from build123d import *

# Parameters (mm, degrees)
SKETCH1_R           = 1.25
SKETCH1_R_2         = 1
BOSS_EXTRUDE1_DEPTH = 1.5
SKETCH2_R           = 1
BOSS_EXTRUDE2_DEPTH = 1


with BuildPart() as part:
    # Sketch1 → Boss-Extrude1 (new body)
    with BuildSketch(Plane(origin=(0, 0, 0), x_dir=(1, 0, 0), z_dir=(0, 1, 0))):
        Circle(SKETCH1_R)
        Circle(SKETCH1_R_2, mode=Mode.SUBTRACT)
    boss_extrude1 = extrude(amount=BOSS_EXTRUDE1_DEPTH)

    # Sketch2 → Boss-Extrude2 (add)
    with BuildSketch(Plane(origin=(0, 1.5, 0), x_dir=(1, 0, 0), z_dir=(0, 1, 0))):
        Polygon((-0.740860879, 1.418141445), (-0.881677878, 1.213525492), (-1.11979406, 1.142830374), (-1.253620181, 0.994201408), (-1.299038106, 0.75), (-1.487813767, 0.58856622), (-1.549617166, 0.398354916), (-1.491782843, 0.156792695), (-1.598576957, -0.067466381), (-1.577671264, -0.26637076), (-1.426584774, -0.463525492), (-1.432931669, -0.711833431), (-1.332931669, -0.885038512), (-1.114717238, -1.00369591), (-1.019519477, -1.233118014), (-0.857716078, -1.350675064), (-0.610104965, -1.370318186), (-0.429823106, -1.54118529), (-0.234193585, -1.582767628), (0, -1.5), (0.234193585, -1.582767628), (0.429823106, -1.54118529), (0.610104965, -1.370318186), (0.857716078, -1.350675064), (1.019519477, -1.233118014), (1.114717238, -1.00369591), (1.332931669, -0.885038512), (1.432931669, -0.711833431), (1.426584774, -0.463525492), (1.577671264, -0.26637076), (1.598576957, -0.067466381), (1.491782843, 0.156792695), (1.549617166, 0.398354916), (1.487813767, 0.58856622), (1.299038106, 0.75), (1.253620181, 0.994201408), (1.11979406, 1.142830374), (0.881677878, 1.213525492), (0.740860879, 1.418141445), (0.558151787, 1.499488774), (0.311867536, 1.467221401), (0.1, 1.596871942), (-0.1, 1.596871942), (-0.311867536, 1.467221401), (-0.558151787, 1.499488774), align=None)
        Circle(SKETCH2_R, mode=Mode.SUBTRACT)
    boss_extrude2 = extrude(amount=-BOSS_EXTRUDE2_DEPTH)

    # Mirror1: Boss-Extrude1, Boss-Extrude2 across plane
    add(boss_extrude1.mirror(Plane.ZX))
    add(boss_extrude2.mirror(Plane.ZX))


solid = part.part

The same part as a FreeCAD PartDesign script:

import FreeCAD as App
import Part
import Sketcher

V = App.Vector
Q = App.Units.Quantity


def add_polygon(sketch, points):
    """Adds a closed chain of lines whose ends are joined by coincident constraints."""
    first, n = sketch.GeometryCount, len(points)
    for a, b in zip(points, points[1:] + points[:1]):
        sketch.addGeometry(Part.LineSegment(App.Vector(*a, 0), App.Vector(*b, 0)), False)
    for i in range(n):
        sketch.addConstraint(Sketcher.Constraint("Coincident", first + i, 2, first + (i + 1) % n, 1))

doc = App.newDocument("Part")
body = doc.addObject("PartDesign::Body", "Body")

# Sketch on XZ plane
sketch1 = body.newObject("Sketcher::SketchObject", "Sketch")
sketch1.AttachmentSupport = (doc.getObject("XZ_Plane"), [""])
sketch1.MapMode = "FlatFace"
sketch1.addGeometry([
    Part.Circle(V(0, 0, 0), V(0, 0, 1), 1.2),
    Part.Circle(V(0, 0, 0), V(0, 0, 1), 1),
], False)
sketch1.addConstraint([
    Sketcher.Constraint("Coincident", 0, 3, -1, 1),
    Sketcher.Constraint("Coincident", 1, 3, -1, 1),
    Sketcher.Constraint("Diameter", 1, 2.0),
    Sketcher.Constraint("Diameter", 0, 2.5),
])
pad1 = body.newObject("PartDesign::Pad", "Pad")
pad1.Profile = sketch1
pad1.Length = 1.5
pad1.Reversed = True

# Sketch on XZ plane
sketch2 = body.newObject("Sketcher::SketchObject", "Sketch001")
sketch2.AttachmentSupport = (doc.getObject("XZ_Plane"), [""])
sketch2.MapMode = "FlatFace"
sketch2.AttachmentOffset = App.Placement(V(0, 0, -1.5), App.Rotation())
add_polygon(sketch2, [(-0.74, -1.42), (-0.88, -1.21), (-1.12, -1.14), (-1.25, -0.99), (-1.3, -0.75), (-1.49, -0.59), (-1.55, -0.4), (-1.49, -0.16), (-1.6, 0.07), (-1.58, 0.27), (-1.43, 0.46), (-1.43, 0.71), (-1.33, 0.89), (-1.11, 1), (-1.02, 1.23), (-0.86, 1.35), (-0.61, 1.37), (-0.43, 1.54), (-0.23, 1.58), (0, 1.5), (0.23, 1.58), (0.43, 1.54), (0.61, 1.37), (0.86, 1.35), (1.02, 1.23), (1.11, 1), (1.33, 0.89), (1.43, 0.71), (1.43, 0.46), (1.58, 0.27), (1.6, 0.07), (1.49, -0.16), (1.55, -0.4), (1.49, -0.59), (1.3, -0.75), (1.25, -0.99), (1.12, -1.14), (0.88, -1.21), (0.74, -1.42), (0.56, -1.5), (0.31, -1.47), (0.1, -1.6), (-0.1, -1.6), (-0.31, -1.47), (-0.56, -1.5)])  # lines 0-44
sketch2.addGeometry(Part.Circle(V(0, 0, 0), V(0, 0, 1), 1), False)  # 45
sketch2.addConstraint([
    Sketcher.Constraint("Horizontal", 41),
    Sketcher.Constraint("Coincident", 45, 3, -1, 1),
    Sketcher.Constraint("Symmetric", 17, 2, 19, 2, -2),
    Sketcher.Constraint("Symmetric", 16, 2, 20, 2, -2),
    Sketcher.Constraint("Symmetric", 15, 2, 21, 2, -2),
    Sketcher.Constraint("Symmetric", 14, 2, 22, 2, -2),
    Sketcher.Constraint("Symmetric", 13, 2, 23, 2, -2),
    Sketcher.Constraint("Symmetric", 12, 2, 24, 2, -2),
    Sketcher.Constraint("Symmetric", 11, 2, 25, 2, -2),
    Sketcher.Constraint("Symmetric", 10, 2, 26, 2, -2),
    Sketcher.Constraint("Symmetric", 9, 2, 27, 2, -2),
    Sketcher.Constraint("Symmetric", 8, 2, 28, 2, -2),
    Sketcher.Constraint("Symmetric", 7, 2, 29, 2, -2),
    Sketcher.Constraint("Symmetric", 6, 2, 30, 2, -2),
    Sketcher.Constraint("Symmetric", 5, 2, 31, 2, -2),
    Sketcher.Constraint("Symmetric", 4, 2, 32, 2, -2),
    Sketcher.Constraint("Symmetric", 3, 2, 33, 2, -2),
    Sketcher.Constraint("Symmetric", 2, 2, 34, 2, -2),
    Sketcher.Constraint("Symmetric", 1, 2, 35, 2, -2),
    Sketcher.Constraint("Symmetric", 0, 2, 36, 2, -2),
    Sketcher.Constraint("Symmetric", 39, 2, 42, 2, -2),
    Sketcher.Constraint("Symmetric", 38, 2, 43, 2, -2),
    Sketcher.Constraint("Symmetric", 37, 2, 44, 2, -2),
    Sketcher.Constraint("PointOnObject", 18, 2, -2),
    Sketcher.Constraint("Equal", 0, 1),
    Sketcher.Constraint("Equal", 1, 3),
    Sketcher.Constraint("Equal", 3, 4),
    Sketcher.Constraint("Equal", 2, 5),
    Sketcher.Constraint("Equal", 4, 6),
    Sketcher.Constraint("Equal", 6, 7),
    Sketcher.Constraint("Equal", 5, 8),
    Sketcher.Constraint("Equal", 7, 9),
    Sketcher.Constraint("Equal", 9, 10),
    Sketcher.Constraint("Equal", 8, 11),
    Sketcher.Constraint("Equal", 10, 12),
    Sketcher.Constraint("Equal", 12, 13),
    Sketcher.Constraint("Equal", 11, 14),
    Sketcher.Constraint("Equal", 13, 15),
    Sketcher.Constraint("Equal", 15, 16),
    Sketcher.Constraint("Equal", 14, 17),
    Sketcher.Constraint("Equal", 16, 18),
    Sketcher.Constraint("Equal", 35, 38),
    Sketcher.Constraint("Equal", 37, 39),
    Sketcher.Constraint("Equal", 39, 40),
    Sketcher.Constraint("Equal", 40, 42),
    Sketcher.Constraint("Diameter", 45, 2.0),
    Sketcher.Constraint("Angle", 2, Q("132 deg")),
    Sketcher.Constraint("Angle", 5, Q("108 deg")),
    Sketcher.Constraint("Angle", 8, Q("84 deg")),
    Sketcher.Constraint("Angle", 11, Q("60 deg")),
    Sketcher.Constraint("Angle", 14, Q("36 deg")),
    Sketcher.Constraint("Angle", 17, Q("12 deg")),
    Sketcher.Constraint("Angle", 38, Q("-156 deg")),
    Sketcher.Constraint("DistanceX", 41, 2, 41, 1, 0.2),
    Sketcher.Constraint("Distance", 2, 0.2),
    Sketcher.Constraint("DistanceY", -1, 1, 18, 2, 1.5),
    Sketcher.Constraint("DistanceY", 3, 2, -1, 1, 0.75),
    Sketcher.Constraint("DistanceX", 12, 2, 14, 2, 0.257001),
    Sketcher.Constraint("DistanceY", 2, 2, -1, 1, 0.994201),
    Sketcher.Constraint("DistanceX", 6, 2, 9, 2, 0.065198),
    Sketcher.Constraint("DistanceY", 13, 2, 15, 2, 0.1372),
    Sketcher.Constraint("DistanceX", 15, 2, 19, 2, 0.844299),
    Sketcher.Constraint("Distance", 0, 0.248389),
    Sketcher.Constraint("DistanceX", 2, 2, -1, 1, 1.25362),
    Sketcher.Constraint("DistanceX", 8, 2, -1, 1, 1.577671),
    Sketcher.Constraint("DistanceY", -1, 1, 8, 2, 0.266371),
    Sketcher.Constraint("DistanceX", 10, 2, -1, 1, 1.432932),
    Sketcher.Constraint("DistanceY", -1, 1, 11, 2, 0.885039),
    Sketcher.Constraint("DistanceX", -1, 1, 37, 2, 0.740861),
    Sketcher.Constraint("DistanceY", 37, 2, -1, 1, 1.418141),
    Sketcher.Constraint("DistanceY", 39, 2, -1, 1, 1.467221),
])
pad2 = body.newObject("PartDesign::Pad", "Pad001")
pad2.Profile = sketch2
pad2.Length = 1
doc.recompute()

mirrored = body.newObject("PartDesign::Mirrored", "Mirrored")
mirrored.Originals = [pad1, pad2]
mirrored.MirrorPlane = (doc.getObject("XZ_Plane"), [""])
body.Tip = mirrored

doc.recompute()
